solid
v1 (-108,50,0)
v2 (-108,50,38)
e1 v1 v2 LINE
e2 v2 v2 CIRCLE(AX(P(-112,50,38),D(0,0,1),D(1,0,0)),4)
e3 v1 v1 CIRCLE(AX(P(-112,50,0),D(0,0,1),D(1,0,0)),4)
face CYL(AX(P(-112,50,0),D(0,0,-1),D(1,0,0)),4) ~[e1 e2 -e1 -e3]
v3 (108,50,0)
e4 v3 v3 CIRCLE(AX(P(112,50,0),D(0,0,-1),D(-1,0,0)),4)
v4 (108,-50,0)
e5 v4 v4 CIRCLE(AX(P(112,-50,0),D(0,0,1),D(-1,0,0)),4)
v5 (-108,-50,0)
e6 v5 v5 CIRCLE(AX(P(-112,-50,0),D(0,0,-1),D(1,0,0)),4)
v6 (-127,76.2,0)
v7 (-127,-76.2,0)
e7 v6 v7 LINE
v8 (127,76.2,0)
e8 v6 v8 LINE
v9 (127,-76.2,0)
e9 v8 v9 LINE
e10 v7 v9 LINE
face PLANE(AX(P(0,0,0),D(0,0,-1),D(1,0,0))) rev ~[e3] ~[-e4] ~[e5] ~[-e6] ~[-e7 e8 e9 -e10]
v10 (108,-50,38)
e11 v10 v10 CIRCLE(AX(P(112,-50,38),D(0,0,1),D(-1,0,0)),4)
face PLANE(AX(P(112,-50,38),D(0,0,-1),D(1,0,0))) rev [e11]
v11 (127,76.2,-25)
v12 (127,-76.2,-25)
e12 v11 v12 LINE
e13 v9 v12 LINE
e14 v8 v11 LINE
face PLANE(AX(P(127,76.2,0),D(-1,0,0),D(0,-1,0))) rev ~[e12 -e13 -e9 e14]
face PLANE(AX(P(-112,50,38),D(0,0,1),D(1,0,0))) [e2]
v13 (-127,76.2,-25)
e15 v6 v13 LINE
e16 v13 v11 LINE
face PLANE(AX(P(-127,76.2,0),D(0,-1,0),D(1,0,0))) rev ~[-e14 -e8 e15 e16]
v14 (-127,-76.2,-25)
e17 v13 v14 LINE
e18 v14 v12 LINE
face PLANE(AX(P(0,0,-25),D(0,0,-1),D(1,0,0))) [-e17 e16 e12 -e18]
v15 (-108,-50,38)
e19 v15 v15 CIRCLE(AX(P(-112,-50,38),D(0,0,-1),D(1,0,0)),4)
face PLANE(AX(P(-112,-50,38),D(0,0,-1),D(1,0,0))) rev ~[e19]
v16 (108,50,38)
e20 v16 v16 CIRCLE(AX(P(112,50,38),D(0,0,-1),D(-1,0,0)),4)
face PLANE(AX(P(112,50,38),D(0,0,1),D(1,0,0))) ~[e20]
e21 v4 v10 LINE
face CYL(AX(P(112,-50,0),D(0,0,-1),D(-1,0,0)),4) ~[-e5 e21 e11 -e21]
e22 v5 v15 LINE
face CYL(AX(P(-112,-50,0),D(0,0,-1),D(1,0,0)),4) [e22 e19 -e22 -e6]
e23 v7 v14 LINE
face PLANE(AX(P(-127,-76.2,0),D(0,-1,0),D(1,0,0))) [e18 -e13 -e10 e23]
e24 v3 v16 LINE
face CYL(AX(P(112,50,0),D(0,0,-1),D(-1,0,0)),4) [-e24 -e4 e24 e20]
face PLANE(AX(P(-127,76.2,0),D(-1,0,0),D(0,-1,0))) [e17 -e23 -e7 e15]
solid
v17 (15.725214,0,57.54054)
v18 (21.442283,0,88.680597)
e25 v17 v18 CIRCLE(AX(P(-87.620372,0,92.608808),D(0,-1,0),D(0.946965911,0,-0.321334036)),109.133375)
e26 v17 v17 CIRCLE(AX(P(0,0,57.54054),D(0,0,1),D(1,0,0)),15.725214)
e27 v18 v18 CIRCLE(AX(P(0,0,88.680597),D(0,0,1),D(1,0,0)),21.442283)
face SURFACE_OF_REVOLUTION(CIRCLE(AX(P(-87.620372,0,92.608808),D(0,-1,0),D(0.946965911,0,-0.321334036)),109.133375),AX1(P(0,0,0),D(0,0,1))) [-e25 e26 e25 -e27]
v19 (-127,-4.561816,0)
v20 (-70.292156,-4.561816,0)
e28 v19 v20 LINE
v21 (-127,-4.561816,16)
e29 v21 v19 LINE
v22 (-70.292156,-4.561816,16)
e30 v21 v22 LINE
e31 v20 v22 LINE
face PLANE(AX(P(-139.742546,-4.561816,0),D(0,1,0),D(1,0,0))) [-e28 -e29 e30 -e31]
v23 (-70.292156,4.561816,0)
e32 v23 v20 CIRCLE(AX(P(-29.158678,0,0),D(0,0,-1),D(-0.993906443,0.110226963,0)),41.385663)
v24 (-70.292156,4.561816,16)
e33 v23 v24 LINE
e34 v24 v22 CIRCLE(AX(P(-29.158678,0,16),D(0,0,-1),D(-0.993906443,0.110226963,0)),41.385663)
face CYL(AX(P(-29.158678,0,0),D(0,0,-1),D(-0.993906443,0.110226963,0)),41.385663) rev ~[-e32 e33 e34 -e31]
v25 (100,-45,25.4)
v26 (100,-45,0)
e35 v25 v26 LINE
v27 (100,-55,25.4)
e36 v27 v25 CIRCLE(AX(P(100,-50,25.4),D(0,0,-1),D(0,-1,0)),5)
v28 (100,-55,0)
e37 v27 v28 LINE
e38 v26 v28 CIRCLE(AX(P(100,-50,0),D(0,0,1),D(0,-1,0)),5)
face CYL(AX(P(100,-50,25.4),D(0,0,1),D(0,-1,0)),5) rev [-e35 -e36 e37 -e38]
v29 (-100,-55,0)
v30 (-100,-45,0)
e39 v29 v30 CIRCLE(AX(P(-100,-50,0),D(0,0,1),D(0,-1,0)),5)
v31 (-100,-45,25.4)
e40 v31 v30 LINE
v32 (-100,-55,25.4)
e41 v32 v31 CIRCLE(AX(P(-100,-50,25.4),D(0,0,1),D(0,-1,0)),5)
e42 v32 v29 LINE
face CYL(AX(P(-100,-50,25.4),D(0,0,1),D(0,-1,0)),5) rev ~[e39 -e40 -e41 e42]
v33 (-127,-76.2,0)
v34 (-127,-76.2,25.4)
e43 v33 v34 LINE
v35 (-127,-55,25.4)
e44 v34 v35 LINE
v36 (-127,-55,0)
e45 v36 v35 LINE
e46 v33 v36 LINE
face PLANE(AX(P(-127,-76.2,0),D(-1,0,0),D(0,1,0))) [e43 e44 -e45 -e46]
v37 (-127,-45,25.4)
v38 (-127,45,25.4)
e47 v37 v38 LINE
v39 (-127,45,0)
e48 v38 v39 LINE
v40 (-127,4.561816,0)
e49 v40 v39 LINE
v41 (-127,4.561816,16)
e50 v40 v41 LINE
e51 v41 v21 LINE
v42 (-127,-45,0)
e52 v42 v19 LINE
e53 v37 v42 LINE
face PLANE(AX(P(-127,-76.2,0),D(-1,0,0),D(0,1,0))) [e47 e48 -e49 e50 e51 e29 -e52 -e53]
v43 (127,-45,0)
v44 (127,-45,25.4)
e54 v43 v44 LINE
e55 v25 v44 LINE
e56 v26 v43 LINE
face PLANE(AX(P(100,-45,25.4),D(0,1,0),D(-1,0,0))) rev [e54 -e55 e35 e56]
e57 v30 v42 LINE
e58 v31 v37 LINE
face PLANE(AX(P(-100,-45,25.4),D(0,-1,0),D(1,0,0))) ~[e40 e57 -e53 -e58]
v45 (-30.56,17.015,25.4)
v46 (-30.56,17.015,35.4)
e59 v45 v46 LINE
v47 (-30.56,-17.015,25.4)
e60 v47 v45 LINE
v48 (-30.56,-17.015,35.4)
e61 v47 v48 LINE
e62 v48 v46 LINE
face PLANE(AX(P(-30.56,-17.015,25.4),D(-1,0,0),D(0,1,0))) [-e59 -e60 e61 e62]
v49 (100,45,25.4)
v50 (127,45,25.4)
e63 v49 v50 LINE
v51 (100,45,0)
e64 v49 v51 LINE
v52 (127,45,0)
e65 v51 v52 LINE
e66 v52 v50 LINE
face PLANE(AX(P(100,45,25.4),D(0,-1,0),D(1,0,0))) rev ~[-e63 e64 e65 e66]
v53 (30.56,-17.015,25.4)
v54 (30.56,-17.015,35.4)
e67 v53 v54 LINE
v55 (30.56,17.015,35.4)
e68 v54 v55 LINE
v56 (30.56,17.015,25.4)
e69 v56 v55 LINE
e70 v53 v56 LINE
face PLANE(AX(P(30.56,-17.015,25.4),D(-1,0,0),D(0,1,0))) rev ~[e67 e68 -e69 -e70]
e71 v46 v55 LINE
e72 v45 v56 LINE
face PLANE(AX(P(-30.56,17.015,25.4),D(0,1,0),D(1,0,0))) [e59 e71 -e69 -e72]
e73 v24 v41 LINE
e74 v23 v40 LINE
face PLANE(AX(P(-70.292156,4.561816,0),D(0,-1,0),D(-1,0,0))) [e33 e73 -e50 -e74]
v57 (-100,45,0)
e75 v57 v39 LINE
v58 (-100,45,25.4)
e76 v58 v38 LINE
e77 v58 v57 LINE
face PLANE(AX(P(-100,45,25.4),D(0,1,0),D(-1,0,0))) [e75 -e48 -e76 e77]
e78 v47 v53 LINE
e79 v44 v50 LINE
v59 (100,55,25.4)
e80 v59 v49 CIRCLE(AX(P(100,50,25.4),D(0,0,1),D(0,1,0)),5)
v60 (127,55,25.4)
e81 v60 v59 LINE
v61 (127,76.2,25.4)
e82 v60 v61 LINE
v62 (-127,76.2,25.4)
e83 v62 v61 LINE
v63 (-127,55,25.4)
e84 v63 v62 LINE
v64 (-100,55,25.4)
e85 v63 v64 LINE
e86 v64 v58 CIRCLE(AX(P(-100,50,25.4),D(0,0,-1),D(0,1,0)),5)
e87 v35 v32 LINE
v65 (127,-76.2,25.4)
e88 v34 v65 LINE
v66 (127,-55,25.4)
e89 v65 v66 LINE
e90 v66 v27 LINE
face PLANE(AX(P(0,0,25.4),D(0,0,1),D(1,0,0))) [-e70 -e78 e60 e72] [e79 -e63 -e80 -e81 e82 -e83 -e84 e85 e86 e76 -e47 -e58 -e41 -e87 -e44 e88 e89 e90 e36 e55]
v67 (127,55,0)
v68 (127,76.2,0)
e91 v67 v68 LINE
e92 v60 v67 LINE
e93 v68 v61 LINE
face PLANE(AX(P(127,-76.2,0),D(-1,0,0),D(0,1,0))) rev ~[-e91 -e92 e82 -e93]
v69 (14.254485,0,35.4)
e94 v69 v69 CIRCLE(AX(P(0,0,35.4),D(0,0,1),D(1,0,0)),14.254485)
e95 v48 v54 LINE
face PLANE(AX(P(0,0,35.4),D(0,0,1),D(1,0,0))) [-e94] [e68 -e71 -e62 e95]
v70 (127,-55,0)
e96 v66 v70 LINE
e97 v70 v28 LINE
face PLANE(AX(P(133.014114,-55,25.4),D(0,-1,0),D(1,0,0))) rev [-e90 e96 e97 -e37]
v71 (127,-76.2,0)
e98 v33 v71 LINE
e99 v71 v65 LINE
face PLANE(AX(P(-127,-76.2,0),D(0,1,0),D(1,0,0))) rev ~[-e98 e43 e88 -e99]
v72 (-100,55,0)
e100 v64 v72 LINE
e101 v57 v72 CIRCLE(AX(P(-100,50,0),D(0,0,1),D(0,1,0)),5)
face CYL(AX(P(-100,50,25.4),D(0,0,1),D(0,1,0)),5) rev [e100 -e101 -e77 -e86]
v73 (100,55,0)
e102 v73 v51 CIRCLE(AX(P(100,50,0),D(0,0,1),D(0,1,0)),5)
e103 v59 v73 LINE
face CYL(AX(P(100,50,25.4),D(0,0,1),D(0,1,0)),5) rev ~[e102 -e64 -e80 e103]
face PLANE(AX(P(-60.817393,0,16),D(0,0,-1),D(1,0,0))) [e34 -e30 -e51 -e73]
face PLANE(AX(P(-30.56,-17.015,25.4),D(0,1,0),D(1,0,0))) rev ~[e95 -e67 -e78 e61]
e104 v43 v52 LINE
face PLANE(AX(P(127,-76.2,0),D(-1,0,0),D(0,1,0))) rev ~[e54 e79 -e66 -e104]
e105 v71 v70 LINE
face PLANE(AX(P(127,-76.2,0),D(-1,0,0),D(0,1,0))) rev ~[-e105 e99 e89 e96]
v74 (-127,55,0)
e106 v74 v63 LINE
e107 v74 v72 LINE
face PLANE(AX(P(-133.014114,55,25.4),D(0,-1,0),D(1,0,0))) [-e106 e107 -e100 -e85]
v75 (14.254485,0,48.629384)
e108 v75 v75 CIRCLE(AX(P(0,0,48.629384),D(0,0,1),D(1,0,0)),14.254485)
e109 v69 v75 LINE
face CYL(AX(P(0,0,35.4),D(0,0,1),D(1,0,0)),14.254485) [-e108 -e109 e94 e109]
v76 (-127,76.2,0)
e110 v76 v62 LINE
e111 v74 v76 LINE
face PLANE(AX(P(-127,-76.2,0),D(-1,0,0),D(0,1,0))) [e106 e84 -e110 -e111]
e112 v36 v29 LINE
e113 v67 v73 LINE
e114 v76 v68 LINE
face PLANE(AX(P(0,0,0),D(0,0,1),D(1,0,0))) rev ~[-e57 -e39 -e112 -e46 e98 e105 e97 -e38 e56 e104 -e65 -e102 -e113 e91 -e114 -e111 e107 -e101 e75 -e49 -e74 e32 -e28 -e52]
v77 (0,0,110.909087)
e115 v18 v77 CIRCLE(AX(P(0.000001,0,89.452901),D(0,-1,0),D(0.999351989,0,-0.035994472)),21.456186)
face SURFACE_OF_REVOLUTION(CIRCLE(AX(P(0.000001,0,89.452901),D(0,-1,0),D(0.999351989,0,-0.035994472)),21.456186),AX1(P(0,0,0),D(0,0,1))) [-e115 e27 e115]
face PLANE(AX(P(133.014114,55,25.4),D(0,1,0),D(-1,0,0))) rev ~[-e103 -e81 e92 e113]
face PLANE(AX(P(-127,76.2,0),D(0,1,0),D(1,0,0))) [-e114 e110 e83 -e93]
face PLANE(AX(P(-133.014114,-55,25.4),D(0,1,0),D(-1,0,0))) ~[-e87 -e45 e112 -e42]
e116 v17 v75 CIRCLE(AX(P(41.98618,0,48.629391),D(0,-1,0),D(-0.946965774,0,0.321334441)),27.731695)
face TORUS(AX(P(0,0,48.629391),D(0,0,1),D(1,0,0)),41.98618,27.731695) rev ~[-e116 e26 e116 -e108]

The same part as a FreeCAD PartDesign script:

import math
import FreeCAD as App
import Part
import Sketcher

doc = App.newDocument("Part")
params = doc.addObject("Spreadsheet::Sheet", "Params")
for row, (alias, value) in enumerate([
    ("sketch1_width", "254 mm"),
    ("sketch1_height", "152.4 mm"),
    ("pad1_length", "25.4 mm"),
    ("sketch2_radius", "5 mm"),
    ("sketch3_radius", "5 mm"),
    ("sketch4_width", "61.12 mm"),
    ("sketch4_height", "34.03 mm"),
    ("pad2_length", "10 mm"),
    ("revolution_angle", "360 deg"),
    ("pocket3_length", "16 mm"),
    ("sketch7_width", "254 mm"),
    ("sketch7_height", "152.4 mm"),
    ("pad3_length", "25 mm"),
    ("sketch8_diameter", "8 mm"),
    ("pad4_length", "38 mm"),
    ("sketch9_diameter", "8 mm"),
    ("pad5_length", "38 mm"),
], start=1):
    params.set(f"A{row}", alias)
    params.set(f"B{row}", "=" + value)
    params.setAlias(f"B{row}", alias)

body = doc.addObject("PartDesign::Body", "Body")

sketch1 = doc.addObject("Sketcher::SketchObject", "Sketch")
body.addObject(sketch1)
sketch1.AttachmentSupport = (doc.XY_Plane, [""])
sketch1.MapMode = "FlatFace"
sketch1.addGeometry(Part.LineSegment(App.Vector(-127, 76, 0), App.Vector(-127, -76, 0)), False)
sketch1.addGeometry(Part.LineSegment(App.Vector(-127, -76, 0), App.Vector(127, -76, 0)), False)
sketch1.addGeometry(Part.LineSegment(App.Vector(127, -76, 0), App.Vector(127, 76, 0)), False)
sketch1.addGeometry(Part.LineSegment(App.Vector(127, 76, 0), App.Vector(-127, 76, 0)), False)
sketch1.addConstraint(Sketcher.Constraint("Coincident", 0, 2, 1, 1))
sketch1.addConstraint(Sketcher.Constraint("Coincident", 1, 2, 2, 1))
sketch1.addConstraint(Sketcher.Constraint("Coincident", 2, 2, 3, 1))
sketch1.addConstraint(Sketcher.Constraint("Coincident", 3, 2, 0, 1))
sketch1.addConstraint(Sketcher.Constraint("Vertical", 0))
sketch1.addConstraint(Sketcher.Constraint("Horizontal", 1))
sketch1.addConstraint(Sketcher.Constraint("Vertical", 2))
sketch1.addConstraint(Sketcher.Constraint("Horizontal", 3))
sketch1.addConstraint(Sketcher.Constraint("Symmetric", 0, 2, 2, 2, -1, 1))
sketch1.addConstraint(Sketcher.Constraint("DistanceX", 1, 1, 1, 2, 254.0))
sketch1.addConstraint(Sketcher.Constraint("DistanceY", 0, 2, 0, 1, 152.4))
sketch1.setExpression("Constraints[9]", "Params.sketch1_width")
sketch1.setExpression("Constraints[10]", "Params.sketch1_height")
pad1 = doc.addObject("PartDesign::Pad", "Pad")
body.addObject(pad1)
pad1.Profile = sketch1
pad1.setExpression("Length", "Params.pad1_length")

sketch2 = doc.addObject("Sketcher::SketchObject", "Sketch001")
body.addObject(sketch2)
sketch2.AttachmentSupport = (doc.XY_Plane, [""])
sketch2.MapMode = "FlatFace"
sketch2.AttachmentOffset = App.Placement(App.Vector(0, 0, 25.4), App.Rotation())
sketch2.addGeometry(Part.LineSegment(App.Vector(133, 55, 0), App.Vector(100, 55, 0)), False)
sketch2.addGeometry(Part.ArcOfCircle(Part.Circle(App.Vector(100, 50, 0), App.Vector(0, 0, 1), 5), math.radians(90), math.radians(270)), False)
sketch2.addGeometry(Part.LineSegment(App.Vector(100, 45, 0), App.Vector(133, 45, 0)), False)
sketch2.addGeometry(Part.LineSegment(App.Vector(133, 45, 0), App.Vector(133, 55, 0)), False)
sketch2.addConstraint(Sketcher.Constraint("Tangent", 0, 2, 1, 1))
sketch2.addConstraint(Sketcher.Constraint("Tangent", 1, 2, 2, 1))
sketch2.addConstraint(Sketcher.Constraint("Coincident", 2, 2, 3, 1))
sketch2.addConstraint(Sketcher.Constraint("Coincident", 3, 2, 0, 1))
sketch2.addConstraint(Sketcher.Constraint("Horizontal", 0))
sketch2.addConstraint(Sketcher.Constraint("Horizontal", 2))
sketch2.addConstraint(Sketcher.Constraint("Vertical", 3))
sketch2.addConstraint(Sketcher.Constraint("Radius", 1, 5.0))
sketch2.addConstraint(Sketcher.Constraint("DistanceX", -1, 1, 1, 3, 100.0))
sketch2.addConstraint(Sketcher.Constraint("DistanceY", -1, 1, 1, 3, 50.0))
sketch2.addConstraint(Sketcher.Constraint("DistanceX", 0, 2, 0, 1, 33.014114))
sketch2.setExpression("Constraints[7]", "Params.sketch2_radius")
pocket1 = doc.addObject("PartDesign::Pocket", "Pocket")
body.addObject(pocket1)
pocket1.Profile = sketch2
pocket1.Type = "ThroughAll"

sketch3 = doc.addObject("Sketcher::SketchObject", "Sketch002")
body.addObject(sketch3)
sketch3.AttachmentSupport = (doc.XY_Plane, [""])
sketch3.MapMode = "FlatFace"
sketch3.AttachmentOffset = App.Placement(App.Vector(0, 0, 25.4), App.Rotation())
sketch3.addGeometry(Part.LineSegment(App.Vector(-133, 55, 0), App.Vector(-100, 55, 0)), False)
sketch3.addGeometry(Part.ArcOfCircle(Part.Circle(App.Vector(-100, 50, 0), App.Vector(0, 0, 1), 5), math.radians(-90), math.radians(90)), False)
sketch3.addGeometry(Part.LineSegment(App.Vector(-100, 45, 0), App.Vector(-133, 45, 0)), False)
sketch3.addGeometry(Part.LineSegment(App.Vector(-133, 45, 0), App.Vector(-133, 55, 0)), False)
sketch3.addConstraint(Sketcher.Constraint("Tangent", 0, 2, 1, 2))
sketch3.addConstraint(Sketcher.Constraint("Tangent", 1, 1, 2, 1))
sketch3.addConstraint(Sketcher.Constraint("Coincident", 2, 2, 3, 1))
sketch3.addConstraint(Sketcher.Constraint("Coincident", 3, 2, 0, 1))
sketch3.addConstraint(Sketcher.Constraint("Horizontal", 0))
sketch3.addConstraint(Sketcher.Constraint("Horizontal", 2))
sketch3.addConstraint(Sketcher.Constraint("Vertical", 3))
sketch3.addConstraint(Sketcher.Constraint("Radius", 1, 5.0))
sketch3.addConstraint(Sketcher.Constraint("DistanceX", 1, 3, -1, 1, 100.0))
sketch3.addConstraint(Sketcher.Constraint("DistanceY", -1, 1, 1, 3, 50.0))
sketch3.addConstraint(Sketcher.Constraint("DistanceX", 0, 1, 0, 2, 33.014114))
sketch3.setExpression("Constraints[7]", "Params.sketch3_radius")
pocket2 = doc.addObject("PartDesign::Pocket", "Pocket001")
body.addObject(pocket2)
pocket2.Profile = sketch3
pocket2.Type = "ThroughAll"
doc.recompute()

mirrored = doc.addObject("PartDesign::Mirrored", "Mirrored")
body.addObject(mirrored)
mirrored.Originals = [pocket1, pocket2]
mirrored.MirrorPlane = (doc.XZ_Plane, [""])
body.Tip = mirrored

sketch4 = doc.addObject("Sketcher::SketchObject", "Sketch003")
body.addObject(sketch4)
sketch4.AttachmentSupport = (doc.XY_Plane, [""])
sketch4.MapMode = "FlatFace"
sketch4.AttachmentOffset = App.Placement(App.Vector(0, 0, 25.4), App.Rotation())
sketch4.addGeometry(Part.LineSegment(App.Vector(-31, 17, 0), App.Vector(-31, -17, 0)), False)
sketch4.addGeometry(Part.LineSegment(App.Vector(-31, -17, 0), App.Vector(31, -17, 0)), False)
sketch4.addGeometry(Part.LineSegment(App.Vector(31, -17, 0), App.Vector(31, 17, 0)), False)
sketch4.addGeometry(Part.LineSegment(App.Vector(31, 17, 0), App.Vector(-31, 17, 0)), False)
sketch4.addConstraint(Sketcher.Constraint("Coincident", 0, 2, 1, 1))
sketch4.addConstraint(Sketcher.Constraint("Coincident", 1, 2, 2, 1))
sketch4.addConstraint(Sketcher.Constraint("Coincident", 2, 2, 3, 1))
sketch4.addConstraint(Sketcher.Constraint("Coincident", 3, 2, 0, 1))
sketch4.addConstraint(Sketcher.Constraint("Vertical", 0))
sketch4.addConstraint(Sketcher.Constraint("Horizontal", 1))
sketch4.addConstraint(Sketcher.Constraint("Vertical", 2))
sketch4.addConstraint(Sketcher.Constraint("Horizontal", 3))
sketch4.addConstraint(Sketcher.Constraint("Symmetric", 0, 2, 2, 2, -1, 1))
sketch4.addConstraint(Sketcher.Constraint("DistanceX", 1, 1, 1, 2, 61.12))
sketch4.addConstraint(Sketcher.Constraint("DistanceY", 0, 2, 0, 1, 34.03))
sketch4.setExpression("Constraints[9]", "Params.sketch4_width")
sketch4.setExpression("Constraints[10]", "Params.sketch4_height")
pad2 = doc.addObject("PartDesign::Pad", "Pad001")
body.addObject(pad2)
pad2.Profile = sketch4
pad2.setExpression("Length", "Params.pad2_length")

sketch5 = doc.addObject("Sketcher::SketchObject", "Sketch004")
body.addObject(sketch5)
sketch5.AttachmentSupport = (doc.XZ_Plane, [""])
sketch5.MapMode = "FlatFace"
sketch5.addGeometry(Part.LineSegment(App.Vector(0, 35, 0), App.Vector(14, 35, 0)), False)
sketch5.addGeometry(Part.LineSegment(App.Vector(14, 35, 0), App.Vector(14, 49, 0)), False)
sketch5.addGeometry(Part.ArcOfCircle(Part.Circle(App.Vector(42, 49, 0), App.Vector(0, 0, 1), 28), math.radians(161.26), math.radians(180)), False)
sketch5.addGeometry(Part.ArcOfCircle(Part.Circle(App.Vector(-88, 93, 0), App.Vector(0, 0, 1), 109), math.radians(-18.74), math.radians(-2.06)), False)
sketch5.addGeometry(Part.ArcOfCircle(Part.Circle(App.Vector(0, 89, 0), App.Vector(0, 0, 1), 21), math.radians(-2), math.radians(90)), False)
sketch5.addGeometry(Part.LineSegment(App.Vector(0, 111, 0), App.Vector(0, 35, 0)), False)
sketch5.addConstraint(Sketcher.Constraint("Coincident", 0, 2, 1, 1))
sketch5.addConstraint(Sketcher.Constraint("Tangent", 1, 2, 2, 2))
sketch5.addConstraint(Sketcher.Constraint("Tangent", 2, 1, 3, 1))
sketch5.addConstraint(Sketcher.Constraint("Tangent", 3, 2, 4, 1))
sketch5.addConstraint(Sketcher.Constraint("Coincident", 4, 2, 5, 1))
sketch5.addConstraint(Sketcher.Constraint("Coincident", 5, 2, 0, 1))
sketch5.addConstraint(Sketcher.Constraint("Horizontal", 0))
sketch5.addConstraint(Sketcher.Constraint("Vertical", 1))
sketch5.addConstraint(Sketcher.Constraint("Vertical", 5))
sketch5.addConstraint(Sketcher.Constraint("PointOnObject", 4, 3, -2))
sketch5.addConstraint(Sketcher.Constraint("PointOnObject", 4, 2, -2))
sketch5.addConstraint(Sketcher.Constraint("DistanceY", -1, 1, 0, 2, 35.4))
sketch5.addConstraint(Sketcher.Constraint("Radius", 2, 27.731695))
sketch5.addConstraint(Sketcher.Constraint("Radius", 3, 109.133375))
sketch5.addConstraint(Sketcher.Constraint("Radius", 4, 21.456186))
sketch5.addConstraint(Sketcher.Constraint("DistanceY", -1, 1, 4, 3, 89.452901))
sketch5.addConstraint(Sketcher.Constraint("DistanceX", 0, 1, 0, 2, 14.254485))
sketch5.addConstraint(Sketcher.Constraint("DistanceY", 1, 1, 1, 2, 13.229384))
revolution = doc.addObject("PartDesign::Revolution", "Revolution")
body.addObject(revolution)
revolution.Profile = sketch5
revolution.ReferenceAxis = (sketch5, ["V_Axis"])
revolution.setExpression("Angle", "Params.revolution_angle")

sketch6 = doc.addObject("Sketcher::SketchObject", "Sketch005")
body.addObject(sketch6)
sketch6.AttachmentSupport = (doc.XY_Plane, [""])
sketch6.MapMode = "FlatFace"
sketch6.addGeometry(Part.ArcOfCircle(Part.Circle(App.Vector(-29, 0, 0), App.Vector(0, 0, 1), 41), math.radians(-174), math.radians(174)), False)
sketch6.addGeometry(Part.LineSegment(App.Vector(-70, -5, 0), App.Vector(-140, -5, 0)), False)
sketch6.addGeometry(Part.LineSegment(App.Vector(-140, -5, 0), App.Vector(-140, 5, 0)), False)
sketch6.addGeometry(Part.LineSegment(App.Vector(-140, 5, 0), App.Vector(-70, 5, 0)), False)
sketch6.addConstraint(Sketcher.Constraint("Coincident", 0, 1, 1, 1))
sketch6.addConstraint(Sketcher.Constraint("Coincident", 1, 2, 2, 1))
sketch6.addConstraint(Sketcher.Constraint("Coincident", 2, 2, 3, 1))
sketch6.addConstraint(Sketcher.Constraint("Coincident", 3, 2, 0, 2))
sketch6.addConstraint(Sketcher.Constraint("Horizontal", 1))
sketch6.addConstraint(Sketcher.Constraint("Vertical", 2))
sketch6.addConstraint(Sketcher.Constraint("Horizontal", 3))
sketch6.addConstraint(Sketcher.Constraint("Symmetric", 0, 1, 3, 2, -1))
sketch6.addConstraint(Sketcher.Constraint("Radius", 0, 41.385663))
sketch6.addConstraint(Sketcher.Constraint("DistanceX", 1, 2, 1, 1, 69.45039))
sketch6.addConstraint(Sketcher.Constraint("DistanceY", 2, 1, 2, 2, 9.123632))
sketch6.addConstraint(Sketcher.Constraint("DistanceX", 0, 3, -1, 1, 29.158678))
pocket3 = doc.addObject("PartDesign::Pocket", "Pocket002")
body.addObject(pocket3)
pocket3.Profile = sketch6
pocket3.setExpression("Length", "Params.pocket3_length")
pocket3.Reversed = True
body2 = doc.addObject("PartDesign::Body", "Body001")

sketch7 = doc.addObject("Sketcher::SketchObject", "Sketch006")
body2.addObject(sketch7)
sketch7.AttachmentSupport = (doc.getObject("XY_Plane001"), [""])
sketch7.MapMode = "FlatFace"
sketch7.addGeometry(Part.LineSegment(App.Vector(-127, -76, 0), App.Vector(-127, 76, 0)), False)
sketch7.addGeometry(Part.LineSegment(App.Vector(-127, 76, 0), App.Vector(127, 76, 0)), False)
sketch7.addGeometry(Part.LineSegment(App.Vector(127, 76, 0), App.Vector(127, -76, 0)), False)
sketch7.addGeometry(Part.LineSegment(App.Vector(127, -76, 0), App.Vector(-127, -76, 0)), False)
sketch7.addConstraint(Sketcher.Constraint("Coincident", 0, 2, 1, 1))
sketch7.addConstraint(Sketcher.Constraint("Coincident", 1, 2, 2, 1))
sketch7.addConstraint(Sketcher.Constraint("Coincident", 2, 2, 3, 1))
sketch7.addConstraint(Sketcher.Constraint("Coincident", 3, 2, 0, 1))
sketch7.addConstraint(Sketcher.Constraint("Vertical", 0))
sketch7.addConstraint(Sketcher.Constraint("Horizontal", 1))
sketch7.addConstraint(Sketcher.Constraint("Vertical", 2))
sketch7.addConstraint(Sketcher.Constraint("Horizontal", 3))
sketch7.addConstraint(Sketcher.Constraint("Symmetric", 0, 2, 2, 2, -1, 1))
sketch7.addConstraint(Sketcher.Constraint("DistanceX", 1, 1, 1, 2, 254.0))
sketch7.addConstraint(Sketcher.Constraint("DistanceY", 0, 1, 0, 2, 152.4))
sketch7.setExpression("Constraints[9]", "Params.sketch7_width")
sketch7.setExpression("Constraints[10]", "Params.sketch7_height")
pad3 = doc.addObject("PartDesign::Pad", "Pad002")
body2.addObject(pad3)
pad3.Profile = sketch7
pad3.setExpression("Length", "Params.pad3_length")
pad3.Reversed = True

sketch8 = doc.addObject("Sketcher::SketchObject", "Sketch007")
body2.addObject(sketch8)
sketch8.AttachmentSupport = (doc.getObject("XY_Plane001"), [""])
sketch8.MapMode = "FlatFace"
sketch8.addGeometry(Part.Circle(App.Vector(-112, 50, 0), App.Vector(0, 0, 1), 4), False)
sketch8.addConstraint(Sketcher.Constraint("Diameter", 0, 8.0))
sketch8.addConstraint(Sketcher.Constraint("DistanceX", 0, 3, -1, 1, 112.0))
sketch8.addConstraint(Sketcher.Constraint("DistanceY", -1, 1, 0, 3, 50.0))
sketch8.setExpression("Constraints[0]", "Params.sketch8_diameter")
pad4 = doc.addObject("PartDesign::Pad", "Pad003")
body2.addObject(pad4)
pad4.Profile = sketch8
pad4.setExpression("Length", "Params.pad4_length")

sketch9 = doc.addObject("Sketcher::SketchObject", "Sketch008")
body2.addObject(sketch9)
sketch9.AttachmentSupport = (doc.getObject("XY_Plane001"), [""])
sketch9.MapMode = "FlatFace"
sketch9.addGeometry(Part.Circle(App.Vector(-112, -50, 0), App.Vector(0, 0, 1), 4), False)
sketch9.addConstraint(Sketcher.Constraint("Diameter", 0, 8.0))
sketch9.addConstraint(Sketcher.Constraint("DistanceX", 0, 3, -1, 1, 112.0))
sketch9.addConstraint(Sketcher.Constraint("DistanceY", 0, 3, -1, 1, 50.0))
sketch9.setExpression("Constraints[0]", "Params.sketch9_diameter")
pad5 = doc.addObject("PartDesign::Pad", "Pad004")
body2.addObject(pad5)
pad5.Profile = sketch9
pad5.setExpression("Length", "Params.pad5_length")
doc.recompute()

mirrored2 = doc.addObject("PartDesign::Mirrored", "Mirrored001")
body2.addObject(mirrored2)
mirrored2.Originals = [pad4, pad5]
mirrored2.MirrorPlane = (doc.getObject("YZ_Plane001"), [""])
body2.Tip = mirrored2

doc.recompute()
